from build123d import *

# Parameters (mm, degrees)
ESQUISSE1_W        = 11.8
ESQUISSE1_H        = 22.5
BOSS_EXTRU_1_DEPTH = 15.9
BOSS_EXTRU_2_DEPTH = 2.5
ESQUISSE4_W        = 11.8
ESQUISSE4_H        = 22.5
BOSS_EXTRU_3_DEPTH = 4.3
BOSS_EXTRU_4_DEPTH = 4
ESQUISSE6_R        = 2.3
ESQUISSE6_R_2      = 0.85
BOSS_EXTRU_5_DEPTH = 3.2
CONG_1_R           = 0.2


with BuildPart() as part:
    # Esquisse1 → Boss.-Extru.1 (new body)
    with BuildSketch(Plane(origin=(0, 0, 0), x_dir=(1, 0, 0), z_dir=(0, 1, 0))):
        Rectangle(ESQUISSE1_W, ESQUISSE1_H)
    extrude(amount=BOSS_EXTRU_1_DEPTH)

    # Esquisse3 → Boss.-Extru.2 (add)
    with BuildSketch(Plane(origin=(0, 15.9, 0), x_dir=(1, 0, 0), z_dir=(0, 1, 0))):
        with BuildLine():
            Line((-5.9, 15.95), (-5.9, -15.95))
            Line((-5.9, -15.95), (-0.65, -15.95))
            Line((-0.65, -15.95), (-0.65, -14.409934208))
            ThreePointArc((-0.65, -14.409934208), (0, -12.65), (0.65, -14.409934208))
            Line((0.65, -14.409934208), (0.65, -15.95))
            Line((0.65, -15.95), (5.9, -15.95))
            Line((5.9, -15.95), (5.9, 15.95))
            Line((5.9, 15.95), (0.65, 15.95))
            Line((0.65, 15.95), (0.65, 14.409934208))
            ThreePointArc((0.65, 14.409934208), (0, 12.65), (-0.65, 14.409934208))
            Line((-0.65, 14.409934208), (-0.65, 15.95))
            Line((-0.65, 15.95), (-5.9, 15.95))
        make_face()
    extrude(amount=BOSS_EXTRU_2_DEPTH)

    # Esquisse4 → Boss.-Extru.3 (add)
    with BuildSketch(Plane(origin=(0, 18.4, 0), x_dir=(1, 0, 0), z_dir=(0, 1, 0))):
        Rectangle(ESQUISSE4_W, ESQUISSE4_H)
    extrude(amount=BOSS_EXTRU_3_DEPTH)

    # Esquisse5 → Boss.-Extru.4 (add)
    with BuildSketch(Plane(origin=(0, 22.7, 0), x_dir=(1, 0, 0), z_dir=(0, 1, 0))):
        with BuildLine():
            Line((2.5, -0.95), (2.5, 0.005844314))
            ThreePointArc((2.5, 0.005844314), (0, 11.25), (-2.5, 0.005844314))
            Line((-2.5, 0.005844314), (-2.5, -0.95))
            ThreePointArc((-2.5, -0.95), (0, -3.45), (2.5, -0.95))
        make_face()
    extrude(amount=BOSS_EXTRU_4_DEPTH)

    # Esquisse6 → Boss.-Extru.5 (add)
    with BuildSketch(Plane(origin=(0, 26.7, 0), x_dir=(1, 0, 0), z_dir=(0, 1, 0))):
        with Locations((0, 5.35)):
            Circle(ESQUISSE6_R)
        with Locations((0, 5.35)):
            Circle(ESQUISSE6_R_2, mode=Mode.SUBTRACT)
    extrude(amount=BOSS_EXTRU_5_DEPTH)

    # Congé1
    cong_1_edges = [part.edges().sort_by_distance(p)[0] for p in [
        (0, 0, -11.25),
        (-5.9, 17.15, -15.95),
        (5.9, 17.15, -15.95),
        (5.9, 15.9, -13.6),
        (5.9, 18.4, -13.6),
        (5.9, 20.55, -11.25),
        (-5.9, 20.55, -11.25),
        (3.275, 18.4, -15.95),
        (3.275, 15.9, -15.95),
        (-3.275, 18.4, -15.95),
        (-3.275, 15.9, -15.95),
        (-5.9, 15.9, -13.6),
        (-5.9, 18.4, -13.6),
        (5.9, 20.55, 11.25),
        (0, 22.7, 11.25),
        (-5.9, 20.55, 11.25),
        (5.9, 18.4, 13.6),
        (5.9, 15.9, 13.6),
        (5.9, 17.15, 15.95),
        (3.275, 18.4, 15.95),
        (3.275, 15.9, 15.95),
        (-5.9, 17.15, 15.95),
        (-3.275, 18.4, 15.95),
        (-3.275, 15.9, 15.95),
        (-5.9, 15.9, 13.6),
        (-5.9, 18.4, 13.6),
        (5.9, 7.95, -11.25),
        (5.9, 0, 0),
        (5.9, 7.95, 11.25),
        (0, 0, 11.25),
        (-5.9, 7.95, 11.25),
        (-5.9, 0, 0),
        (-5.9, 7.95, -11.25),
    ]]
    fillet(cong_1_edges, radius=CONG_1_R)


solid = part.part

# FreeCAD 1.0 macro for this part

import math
import FreeCAD as App
import Part
import Sketcher
from FreeCAD import Vector


def edges_at(feature, points):
    """Names of the edges that pass closest to the given points."""
    edges = feature.Shape.Edges
    near = lambda p: min(range(len(edges)), key=lambda i: edges[i].distToShape(Part.Vertex(*p))[0])
    return sorted({f"Edge{near(p) + 1}" for p in points})


def add_polygon(sketch, points):
    """Adds a closed chain of lines whose ends are joined by coincident constraints."""
    first, n = sketch.GeometryCount, len(points)
    for a, b in zip(points, points[1:] + points[:1]):
        sketch.addGeometry(Part.LineSegment(App.Vector(*a, 0), App.Vector(*b, 0)), False)
    for i in range(n):
        sketch.addConstraint(Sketcher.Constraint("Coincident", first + i, 2, first + (i + 1) % n, 1))

doc = App.newDocument("Part")
body = doc.addObject("PartDesign::Body", "Body")

# Sketch on XZ plane
sketch1 = body.newObject("Sketcher::SketchObject", "Sketch")
sketch1.AttachmentSupport = (doc.getObject("XZ_Plane"), [""])
sketch1.MapMode = "FlatFace"
add_polygon(sketch1, [(-5.9, -11.25), (-5.9, 11.25), (5.9, 11.25), (5.9, -11.25)])  # lines 0-3
sketch1.addConstraint([
    Sketcher.Constraint("Vertical", 0),
    Sketcher.Constraint("Horizontal", 1),
    Sketcher.Constraint("Vertical", 2),
    Sketcher.Constraint("Horizontal", 3),
    Sketcher.Constraint("Symmetric", 0, 2, 2, 2, -1, 1),
    Sketcher.Constraint("DistanceX", 1, 1, 1, 2, 11.8),
    Sketcher.Constraint("DistanceY", 0, 1, 0, 2, 22.5),
])
pad1 = body.newObject("PartDesign::Pad", "Pad")
pad1.Profile = sketch1
pad1.Length = 15.9
pad1.Reversed = True

# Sketch on XZ plane
sketch2 = body.newObject("Sketcher::SketchObject", "Sketch001")
sketch2.AttachmentSupport = (doc.getObject("XZ_Plane"), [""])
sketch2.MapMode = "FlatFace"
sketch2.AttachmentOffset = App.Placement(Vector(0, 0, -15.9), App.Rotation())
sketch2.addGeometry([
    Part.LineSegment(Vector(-5.9, -15.95, 0), Vector(-5.9, 15.95, 0)),  # 0
    Part.LineSegment(Vector(-5.9, 15.95, 0), Vector(-0.65, 15.95, 0)),  # 1
    Part.LineSegment(Vector(-0.65, 15.95, 0), Vector(-0.65, 14.409934, 0)),  # 2
    Part.ArcOfCircle(Part.Circle(Vector(0, 13.65, 0), Vector(0, 0, 1), 1), math.radians(130.541602), math.radians(409.458398)),  # 3
    Part.LineSegment(Vector(0.65, 14.409934, 0), Vector(0.65, 15.95, 0)),  # 4
    Part.LineSegment(Vector(0.65, 15.95, 0), Vector(5.9, 15.95, 0)),  # 5
    Part.LineSegment(Vector(5.9, 15.95, 0), Vector(5.9, -15.95, 0)),  # 6
    Part.LineSegment(Vector(5.9, -15.95, 0), Vector(0.65, -15.95, 0)),  # 7
    Part.LineSegment(Vector(0.65, -15.95, 0), Vector(0.65, -14.409934, 0)),  # 8
    Part.ArcOfCircle(Part.Circle(Vector(0, -13.65, 0), Vector(0, 0, 1), 1), math.radians(-49.458398), math.radians(229.458398)),  # 9
    Part.LineSegment(Vector(-0.65, -14.409934, 0), Vector(-0.65, -15.95, 0)),  # 10
    Part.LineSegment(Vector(-0.65, -15.95, 0), Vector(-5.9, -15.95, 0)),  # 11
], False)
sketch2.addConstraint([
    Sketcher.Constraint("Coincident", 0, 2, 1, 1),
    Sketcher.Constraint("Coincident", 1, 2, 2, 1),
    Sketcher.Constraint("Coincident", 2, 2, 3, 1),
    Sketcher.Constraint("Coincident", 3, 2, 4, 1),
    Sketcher.Constraint("Coincident", 4, 2, 5, 1),
    Sketcher.Constraint("Coincident", 5, 2, 6, 1),
    Sketcher.Constraint("Coincident", 6, 2, 7, 1),
    Sketcher.Constraint("Coincident", 7, 2, 8, 1),
    Sketcher.Constraint("Coincident", 8, 2, 9, 1),
    Sketcher.Constraint("Coincident", 9, 2, 10, 1),
    Sketcher.Constraint("Coincident", 10, 2, 11, 1),
    Sketcher.Constraint("Coincident", 11, 2, 0, 1),
    Sketcher.Constraint("Vertical", 0),
    Sketcher.Constraint("Horizontal", 1),
    Sketcher.Constraint("Vertical", 2),
    Sketcher.Constraint("Vertical", 4),
    Sketcher.Constraint("Horizontal", 5),
    Sketcher.Constraint("Vertical", 6),
    Sketcher.Constraint("Horizontal", 7),
    Sketcher.Constraint("Vertical", 8),
    Sketcher.Constraint("Vertical", 10),
    Sketcher.Constraint("Horizontal", 11),
    Sketcher.Constraint("Equal", 3, 9),
    Sketcher.Constraint("Symmetric", 3, 3, 9, 3, -1, 1),
    Sketcher.Constraint("Symmetric", 0, 2, 6, 2, -1, 1),
    Sketcher.Constraint("Symmetric", 4, 2, 10, 2, -1, 1),
    Sketcher.Constraint("Symmetric", 2, 2, 3, 2, -2),
    Sketcher.Constraint("Symmetric", 7, 2, 10, 2, -2),
    Sketcher.Constraint("Radius", 3, 1.0),
    Sketcher.Constraint("DistanceY", 0, 1, 0, 2, 31.9),
    Sketcher.Constraint("DistanceX", 1, 1, 1, 2, 5.25),
    Sketcher.Constraint("DistanceX", 0, 2, -1, 1, 5.9),
    Sketcher.Constraint("DistanceY", 9, 3, 3, 3, 27.3),
])
pad2 = body.newObject("PartDesign::Pad", "Pad001")
pad2.Profile = sketch2
pad2.Length = 2.5
pad2.Reversed = True

# Sketch on XZ plane
sketch3 = body.newObject("Sketcher::SketchObject", "Sketch002")
sketch3.AttachmentSupport = (doc.getObject("XZ_Plane"), [""])
sketch3.MapMode = "FlatFace"
sketch3.AttachmentOffset = App.Placement(Vector(0, 0, -18.4), App.Rotation())
add_polygon(sketch3, [(-5.9, -11.25), (-5.9, 11.25), (5.9, 11.25), (5.9, -11.25)])  # lines 0-3
sketch3.addConstraint([
    Sketcher.Constraint("Vertical", 0),
    Sketcher.Constraint("Horizontal", 1),
    Sketcher.Constraint("Vertical", 2),
    Sketcher.Constraint("Horizontal", 3),
    Sketcher.Constraint("Symmetric", 0, 2, 2, 2, -1, 1),
    Sketcher.Constraint("DistanceX", 1, 1, 1, 2, 11.8),
    Sketcher.Constraint("DistanceY", 0, 1, 0, 2, 22.5),
])
pad3 = body.newObject("PartDesign::Pad", "Pad002")
pad3.Profile = sketch3
pad3.Length = 4.3
pad3.Reversed = True

# Sketch on XZ plane
sketch4 = body.newObject("Sketcher::SketchObject", "Sketch003")
sketch4.AttachmentSupport = (doc.getObject("XZ_Plane"), [""])
sketch4.MapMode = "FlatFace"
sketch4.AttachmentOffset = App.Placement(Vector(0, 0, -22.7), App.Rotation())
sketch4.addGeometry([
    Part.LineSegment(Vector(2.5, 0.95, 0), Vector(2.5, -0.005844, 0)),
    Part.ArcOfCircle(Part.Circle(Vector(0, -5.35, 0), Vector(0, 0, 1), 5.9), math.radians(115.070228), math.radians(424.929772)),
    Part.LineSegment(Vector(-2.5, -0.005844, 0), Vector(-2.5, 0.95, 0)),
    Part.ArcOfCircle(Part.Circle(Vector(0, 0.95, 0), Vector(0, 0, 1), 2.5), math.radians(0), math.radians(180)),
], False)
sketch4.addConstraint([
    Sketcher.Constraint("Coincident", 0, 2, 1, 2),
    Sketcher.Constraint("Coincident", 1, 1, 2, 1),
    Sketcher.Constraint("Tangent", 2, 2, 3, 2),
    Sketcher.Constraint("Tangent", 3, 1, 0, 1),
    Sketcher.Constraint("Vertical", 0),
    Sketcher.Constraint("Vertical", 2),
    Sketcher.Constraint("Symmetric", 0, 2, 1, 1, -2),
    Sketcher.Constraint("Radius", 1, 5.9),
    Sketcher.Constraint("Radius", 3, 2.5),
    Sketcher.Constraint("DistanceY", 1, 3, 3, 3, 6.3),
    Sketcher.Constraint("DistanceY", 1, 3, -1, 1, 5.35),
])
pad4 = body.newObject("PartDesign::Pad", "Pad003")
pad4.Profile = sketch4
pad4.Length = 4
pad4.Reversed = True

# Sketch on XZ plane
sketch5 = body.newObject("Sketcher::SketchObject", "Sketch004")
sketch5.AttachmentSupport = (doc.getObject("XZ_Plane"), [""])
sketch5.MapMode = "FlatFace"
sketch5.AttachmentOffset = App.Placement(Vector(0, 0, -26.7), App.Rotation())
sketch5.addGeometry([
    Part.Circle(Vector(0, -5.35, 0), Vector(0, 0, 1), 2.3),
    Part.Circle(Vector(0, -5.35, 0), Vector(0, 0, 1), 0.85),
], False)
sketch5.addConstraint([
    Sketcher.Constraint("Coincident", 1, 3, 0, 3),
    Sketcher.Constraint("PointOnObject", 0, 3, -2),
    Sketcher.Constraint("Diameter", 0, 4.6),
    Sketcher.Constraint("Diameter", 1, 1.7),
    Sketcher.Constraint("DistanceY", 0, 3, -1, 1, 5.35),
])
pad5 = body.newObject("PartDesign::Pad", "Pad004")
pad5.Profile = sketch5
pad5.Length = 3.2
pad5.Reversed = True
doc.recompute()

fillet = body.newObject("PartDesign::Fillet", "Fillet")
fillet.Base = (pad5, edges_at(pad5, [
    (0, 0, -11.25),
    (-5.9, 17.15, -15.95),
    (5.9, 17.15, -15.95),
    (5.9, 15.9, -13.6),
    (5.9, 18.4, -13.6),
    (5.9, 20.55, -11.25),
    (-5.9, 20.55, -11.25),
    (3.275, 18.4, -15.95),
    (3.275, 15.9, -15.95),
    (-3.275, 18.4, -15.95),
    (-3.275, 15.9, -15.95),
    (-5.9, 15.9, -13.6),
    (-5.9, 18.4, -13.6),
    (5.9, 20.55, 11.25),
    (0, 22.7, 11.25),
    (-5.9, 20.55, 11.25),
    (5.9, 18.4, 13.6),
    (5.9, 15.9, 13.6),
    (5.9, 17.15, 15.95),
    (3.275, 18.4, 15.95),
    (3.275, 15.9, 15.95),
    (-5.9, 17.15, 15.95),
    (-3.275, 18.4, 15.95),
    (-3.275, 15.9, 15.95),
    (-5.9, 15.9, 13.6),
    (-5.9, 18.4, 13.6),
    (5.9, 7.95, -11.25),
    (5.9, 0, 0),
    (5.9, 7.95, 11.25),
    (0, 0, 11.25),
    (-5.9, 7.95, 11.25),
    (-5.9, 0, 0),
    (-5.9, 7.95, -11.25),
]))
fillet.Radius = 0.2

doc.recompute()
